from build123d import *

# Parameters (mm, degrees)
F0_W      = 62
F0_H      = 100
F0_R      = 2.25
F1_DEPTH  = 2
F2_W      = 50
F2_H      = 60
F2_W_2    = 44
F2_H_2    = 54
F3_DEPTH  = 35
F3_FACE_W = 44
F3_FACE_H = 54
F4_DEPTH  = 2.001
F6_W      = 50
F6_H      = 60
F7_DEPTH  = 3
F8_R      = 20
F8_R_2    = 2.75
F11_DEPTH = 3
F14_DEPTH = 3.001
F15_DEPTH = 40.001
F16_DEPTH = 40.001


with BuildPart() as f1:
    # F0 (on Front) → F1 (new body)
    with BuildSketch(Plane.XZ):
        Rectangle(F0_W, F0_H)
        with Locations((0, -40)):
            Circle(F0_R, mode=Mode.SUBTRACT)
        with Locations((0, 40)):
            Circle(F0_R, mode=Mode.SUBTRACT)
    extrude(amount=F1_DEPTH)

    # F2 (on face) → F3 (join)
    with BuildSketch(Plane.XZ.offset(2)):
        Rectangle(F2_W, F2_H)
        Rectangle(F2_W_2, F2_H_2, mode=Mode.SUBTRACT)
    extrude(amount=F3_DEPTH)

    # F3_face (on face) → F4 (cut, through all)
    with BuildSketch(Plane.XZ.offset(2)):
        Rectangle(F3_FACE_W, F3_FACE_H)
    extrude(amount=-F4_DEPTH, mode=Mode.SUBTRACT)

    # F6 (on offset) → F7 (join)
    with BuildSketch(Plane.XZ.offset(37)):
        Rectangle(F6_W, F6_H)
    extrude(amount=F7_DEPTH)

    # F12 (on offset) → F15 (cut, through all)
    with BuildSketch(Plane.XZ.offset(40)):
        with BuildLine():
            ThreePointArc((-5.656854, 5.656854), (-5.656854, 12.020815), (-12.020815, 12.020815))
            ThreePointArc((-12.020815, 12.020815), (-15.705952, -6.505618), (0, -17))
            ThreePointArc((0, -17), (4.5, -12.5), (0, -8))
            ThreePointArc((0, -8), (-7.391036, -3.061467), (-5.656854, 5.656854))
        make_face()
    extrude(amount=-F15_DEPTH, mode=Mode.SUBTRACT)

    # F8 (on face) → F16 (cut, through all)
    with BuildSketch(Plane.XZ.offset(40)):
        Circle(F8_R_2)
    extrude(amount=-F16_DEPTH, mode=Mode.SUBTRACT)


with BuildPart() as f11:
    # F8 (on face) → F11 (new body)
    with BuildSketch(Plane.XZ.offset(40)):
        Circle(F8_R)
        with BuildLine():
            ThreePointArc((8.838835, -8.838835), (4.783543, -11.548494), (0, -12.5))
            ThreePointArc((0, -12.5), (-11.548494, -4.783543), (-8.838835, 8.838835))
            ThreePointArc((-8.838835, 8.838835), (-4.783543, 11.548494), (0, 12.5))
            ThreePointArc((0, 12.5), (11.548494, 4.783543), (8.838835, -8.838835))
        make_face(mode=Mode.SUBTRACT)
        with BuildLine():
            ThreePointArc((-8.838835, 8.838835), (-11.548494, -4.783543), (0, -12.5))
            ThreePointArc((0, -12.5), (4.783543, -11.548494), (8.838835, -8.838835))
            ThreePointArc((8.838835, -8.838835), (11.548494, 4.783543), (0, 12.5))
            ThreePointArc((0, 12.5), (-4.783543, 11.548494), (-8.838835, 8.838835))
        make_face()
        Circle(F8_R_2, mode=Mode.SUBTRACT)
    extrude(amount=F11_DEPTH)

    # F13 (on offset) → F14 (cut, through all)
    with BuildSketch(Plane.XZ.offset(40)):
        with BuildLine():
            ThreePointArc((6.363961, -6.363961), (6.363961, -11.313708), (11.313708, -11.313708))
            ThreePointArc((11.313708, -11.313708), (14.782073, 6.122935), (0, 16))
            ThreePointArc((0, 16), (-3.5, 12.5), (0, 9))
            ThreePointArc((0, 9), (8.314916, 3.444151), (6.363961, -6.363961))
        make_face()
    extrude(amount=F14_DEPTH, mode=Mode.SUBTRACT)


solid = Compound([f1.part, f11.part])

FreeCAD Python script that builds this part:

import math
import FreeCAD as App
import Part
import Sketcher

V = App.Vector

doc = App.newDocument("Part")
params = doc.addObject("Spreadsheet::Sheet", "Params")
for row, (alias, value) in enumerate([
    ("sketch1_diameter", "4.5 mm"),
    ("sketch1_width", "62 mm"),
    ("sketch1_height", "100 mm"),
    ("pad1_length", "2 mm"),
    ("sketch2_width", "50 mm"),
    ("sketch2_width2", "44 mm"),
    ("sketch2_height", "60 mm"),
    ("sketch2_height2", "54 mm"),
    ("pad2_length", "35 mm"),
    ("sketch3_width", "44 mm"),
    ("sketch3_height", "54 mm"),
    ("sketch4_width", "50 mm"),
    ("sketch4_height", "60 mm"),
    ("pad3_length", "3 mm"),
    ("sketch5_radius", "17 mm"),
    ("sketch5_radius2", "8 mm"),
    ("sketch6_diameter", "5.5 mm"),
    ("sketch7_diameter", "40 mm"),
    ("sketch7_diameter2", "5.5 mm"),
    ("pad4_length", "3 mm"),
    ("sketch8_radius", "15.999999 mm"),
    ("sketch8_radius2", "9 mm"),
], start=1):
    params.set(f"A{row}", alias)
    params.set(f"B{row}", "=" + value)
    params.setAlias(f"B{row}", alias)

body = doc.addObject("PartDesign::Body", "Body")

# Sketch on XZ plane
sketch1 = body.newObject("Sketcher::SketchObject", "Sketch")
sketch1.AttachmentSupport = (doc.getObject("XZ_Plane"), [""])
sketch1.MapMode = "FlatFace"
sketch1.addGeometry(Part.LineSegment(V(-31, 50, 0), V(-31, -50, 0)), False)
sketch1.addGeometry(Part.LineSegment(V(-31, -50, 0), V(31, -50, 0)), False)
sketch1.addGeometry(Part.LineSegment(V(31, -50, 0), V(31, 50, 0)), False)
sketch1.addGeometry(Part.LineSegment(V(31, 50, 0), V(-31, 50, 0)), False)
sketch1.addGeometry(Part.Circle(V(0, -40, 0), V(0, 0, 1), 2.2), False)
sketch1.addGeometry(Part.Circle(V(0, 40, 0), V(0, 0, 1), 2.2), False)
sketch1.addConstraint(Sketcher.Constraint("Coincident", 0, 2, 1, 1))
sketch1.addConstraint(Sketcher.Constraint("Coincident", 1, 2, 2, 1))
sketch1.addConstraint(Sketcher.Constraint("Coincident", 2, 2, 3, 1))
sketch1.addConstraint(Sketcher.Constraint("Coincident", 3, 2, 0, 1))
sketch1.addConstraint(Sketcher.Constraint("Vertical", 0))
sketch1.addConstraint(Sketcher.Constraint("Horizontal", 1))
sketch1.addConstraint(Sketcher.Constraint("Vertical", 2))
sketch1.addConstraint(Sketcher.Constraint("Horizontal", 3))
sketch1.addConstraint(Sketcher.Constraint("Equal", 4, 5))
sketch1.addConstraint(Sketcher.Constraint("Symmetric", 4, 3, 5, 3, -1, 1))
sketch1.addConstraint(Sketcher.Constraint("Symmetric", 0, 2, 2, 2, -1, 1))
sketch1.addConstraint(Sketcher.Constraint("PointOnObject", 4, 3, -2))
sketch1.addConstraint(Sketcher.Constraint("Diameter", 4, 4.5))
sketch1.addConstraint(Sketcher.Constraint("DistanceX", 1, 1, 1, 2, 62.0))
sketch1.addConstraint(Sketcher.Constraint("DistanceY", 0, 2, 0, 1, 100.0))
sketch1.addConstraint(Sketcher.Constraint("DistanceY", 4, 3, -1, 1, 40.0))
sketch1.setExpression("Constraints[12]", "Params.sketch1_diameter")
sketch1.setExpression("Constraints[13]", "Params.sketch1_width")
sketch1.setExpression("Constraints[14]", "Params.sketch1_height")
pad1 = body.newObject("PartDesign::Pad", "Pad")
pad1.Profile = sketch1
pad1.setExpression("Length", "Params.pad1_length")

# Sketch on XZ plane
sketch2 = body.newObject("Sketcher::SketchObject", "Sketch001")
sketch2.AttachmentSupport = (doc.getObject("XZ_Plane"), [""])
sketch2.MapMode = "FlatFace"
sketch2.AttachmentOffset = App.Placement(V(0, 0, 2), App.Rotation())
sketch2.addGeometry(Part.LineSegment(V(-25, 30, 0), V(-25, -30, 0)), False)
sketch2.addGeometry(Part.LineSegment(V(-25, -30, 0), V(25, -30, 0)), False)
sketch2.addGeometry(Part.LineSegment(V(25, -30, 0), V(25, 30, 0)), False)
sketch2.addGeometry(Part.LineSegment(V(25, 30, 0), V(-25, 30, 0)), False)
sketch2.addGeometry(Part.LineSegment(V(22, -27, 0), V(-22, -27, 0)), False)
sketch2.addGeometry(Part.LineSegment(V(-22, -27, 0), V(-22, 27, 0)), False)
sketch2.addGeometry(Part.LineSegment(V(-22, 27, 0), V(22, 27, 0)), False)
sketch2.addGeometry(Part.LineSegment(V(22, 27, 0), V(22, -27, 0)), False)
sketch2.addConstraint(Sketcher.Constraint("Coincident", 0, 2, 1, 1))
sketch2.addConstraint(Sketcher.Constraint("Coincident", 1, 2, 2, 1))
sketch2.addConstraint(Sketcher.Constraint("Coincident", 2, 2, 3, 1))
sketch2.addConstraint(Sketcher.Constraint("Coincident", 3, 2, 0, 1))
sketch2.addConstraint(Sketcher.Constraint("Coincident", 4, 2, 5, 1))
sketch2.addConstraint(Sketcher.Constraint("Coincident", 5, 2, 6, 1))
sketch2.addConstraint(Sketcher.Constraint("Coincident", 6, 2, 7, 1))
sketch2.addConstraint(Sketcher.Constraint("Coincident", 7, 2, 4, 1))
sketch2.addConstraint(Sketcher.Constraint("Vertical", 0))
sketch2.addConstraint(Sketcher.Constraint("Horizontal", 1))
sketch2.addConstraint(Sketcher.Constraint("Vertical", 2))
sketch2.addConstraint(Sketcher.Constraint("Horizontal", 3))
sketch2.addConstraint(Sketcher.Constraint("Horizontal", 4))
sketch2.addConstraint(Sketcher.Constraint("Vertical", 5))
sketch2.addConstraint(Sketcher.Constraint("Horizontal", 6))
sketch2.addConstraint(Sketcher.Constraint("Vertical", 7))
sketch2.addConstraint(Sketcher.Constraint("Symmetric", 0, 2, 2, 2, -1, 1))
sketch2.addConstraint(Sketcher.Constraint("Symmetric", 4, 2, 6, 2, -1, 1))
sketch2.addConstraint(Sketcher.Constraint("DistanceX", 1, 1, 1, 2, 50.0))
sketch2.addConstraint(Sketcher.Constraint("DistanceX", 4, 2, 4, 1, 44.0))
sketch2.addConstraint(Sketcher.Constraint("DistanceY", 0, 2, 0, 1, 60.0))
sketch2.addConstraint(Sketcher.Constraint("DistanceY", 5, 1, 5, 2, 54.0))
sketch2.setExpression("Constraints[18]", "Params.sketch2_width")
sketch2.setExpression("Constraints[19]", "Params.sketch2_width2")
sketch2.setExpression("Constraints[20]", "Params.sketch2_height")
sketch2.setExpression("Constraints[21]", "Params.sketch2_height2")
pad2 = body.newObject("PartDesign::Pad", "Pad001")
pad2.Profile = sketch2
pad2.setExpression("Length", "Params.pad2_length")

# Sketch on XZ plane
sketch3 = body.newObject("Sketcher::SketchObject", "Sketch002")
sketch3.AttachmentSupport = (doc.getObject("XZ_Plane"), [""])
sketch3.MapMode = "FlatFace"
sketch3.AttachmentOffset = App.Placement(V(0, 0, 2), App.Rotation())
sketch3.addGeometry(Part.LineSegment(V(-22, 27, 0), V(-22, -27, 0)), False)
sketch3.addGeometry(Part.LineSegment(V(-22, -27, 0), V(22, -27, 0)), False)
sketch3.addGeometry(Part.LineSegment(V(22, -27, 0), V(22, 27, 0)), False)
sketch3.addGeometry(Part.LineSegment(V(22, 27, 0), V(-22, 27, 0)), False)
sketch3.addConstraint(Sketcher.Constraint("Coincident", 0, 2, 1, 1))
sketch3.addConstraint(Sketcher.Constraint("Coincident", 1, 2, 2, 1))
sketch3.addConstraint(Sketcher.Constraint("Coincident", 2, 2, 3, 1))
sketch3.addConstraint(Sketcher.Constraint("Coincident", 3, 2, 0, 1))
sketch3.addConstraint(Sketcher.Constraint("Vertical", 0))
sketch3.addConstraint(Sketcher.Constraint("Horizontal", 1))
sketch3.addConstraint(Sketcher.Constraint("Vertical", 2))
sketch3.addConstraint(Sketcher.Constraint("Horizontal", 3))
sketch3.addConstraint(Sketcher.Constraint("Symmetric", 0, 2, 2, 2, -1, 1))
sketch3.addConstraint(Sketcher.Constraint("DistanceX", 1, 1, 1, 2, 44.0))
sketch3.addConstraint(Sketcher.Constraint("DistanceY", 0, 2, 0, 1, 54.0))
sketch3.setExpression("Constraints[9]", "Params.sketch3_width")
sketch3.setExpression("Constraints[10]", "Params.sketch3_height")
pocket1 = body.newObject("PartDesign::Pocket", "Pocket")
pocket1.Profile = sketch3
pocket1.Type = "ThroughAll"

# Sketch on XZ plane
sketch4 = body.newObject("Sketcher::SketchObject", "Sketch003")
sketch4.AttachmentSupport = (doc.getObject("XZ_Plane"), [""])
sketch4.MapMode = "FlatFace"
sketch4.AttachmentOffset = App.Placement(V(0, 0, 37), App.Rotation())
sketch4.addGeometry(Part.LineSegment(V(-25, 30, 0), V(-25, -30, 0)), False)
sketch4.addGeometry(Part.LineSegment(V(-25, -30, 0), V(25, -30, 0)), False)
sketch4.addGeometry(Part.LineSegment(V(25, -30, 0), V(25, 30, 0)), False)
sketch4.addGeometry(Part.LineSegment(V(25, 30, 0), V(-25, 30, 0)), False)
sketch4.addConstraint(Sketcher.Constraint("Coincident", 0, 2, 1, 1))
sketch4.addConstraint(Sketcher.Constraint("Coincident", 1, 2, 2, 1))
sketch4.addConstraint(Sketcher.Constraint("Coincident", 2, 2, 3, 1))
sketch4.addConstraint(Sketcher.Constraint("Coincident", 3, 2, 0, 1))
sketch4.addConstraint(Sketcher.Constraint("Vertical", 0))
sketch4.addConstraint(Sketcher.Constraint("Horizontal", 1))
sketch4.addConstraint(Sketcher.Constraint("Vertical", 2))
sketch4.addConstraint(Sketcher.Constraint("Horizontal", 3))
sketch4.addConstraint(Sketcher.Constraint("Symmetric", 0, 2, 2, 2, -1, 1))
sketch4.addConstraint(Sketcher.Constraint("DistanceX", 1, 1, 1, 2, 50.0))
sketch4.addConstraint(Sketcher.Constraint("DistanceY", 0, 2, 0, 1, 60.0))
sketch4.setExpression("Constraints[9]", "Params.sketch4_width")
sketch4.setExpression("Constraints[10]", "Params.sketch4_height")
pad3 = body.newObject("PartDesign::Pad", "Pad002")
pad3.Profile = sketch4
pad3.setExpression("Length", "Params.pad3_length")

# Sketch on XZ plane
sketch5 = body.newObject("Sketcher::SketchObject", "Sketch004")
sketch5.AttachmentSupport = (doc.getObject("XZ_Plane"), [""])
sketch5.MapMode = "FlatFace"
sketch5.AttachmentOffset = App.Placement(V(0, 0, 40), App.Rotation())
sketch5.addGeometry(Part.ArcOfCircle(Part.Circle(V(-8.8, 8.8, 0), V(0, 0, 1), 4.5), math.radians(-45), math.radians(135)), False)
sketch5.addGeometry(Part.ArcOfCircle(Part.Circle(V(0, 0, 0), V(0, 0, 1), 17), math.radians(135), math.radians(270)), False)
sketch5.addGeometry(Part.ArcOfCircle(Part.Circle(V(0, -12.5, 0), V(0, 0, 1), 4.5), math.radians(-90), math.radians(90)), False)
sketch5.addGeometry(Part.ArcOfCircle(Part.Circle(V(0, 0, 0), V(0, 0, 1), 8), math.radians(135), math.radians(270)), False)
sketch5.addConstraint(Sketcher.Constraint("Tangent", 0, 2, 1, 1))
sketch5.addConstraint(Sketcher.Constraint("Tangent", 1, 2, 2, 1))
sketch5.addConstraint(Sketcher.Constraint("Tangent", 2, 2, 3, 2))
sketch5.addConstraint(Sketcher.Constraint("Tangent", 3, 1, 0, 1))
sketch5.addConstraint(Sketcher.Constraint("Coincident", 1, 3, -1, 1))
sketch5.addConstraint(Sketcher.Constraint("Coincident", 3, 3, -1, 1))
sketch5.addConstraint(Sketcher.Constraint("PointOnObject", 2, 3, -2))
sketch5.addConstraint(Sketcher.Constraint("Radius", 1, 17.0))
sketch5.addConstraint(Sketcher.Constraint("Radius", 3, 8.0))
sketch5.addConstraint(Sketcher.Constraint("DistanceX", 0, 2, 0, 3, 3.18198))
sketch5.setExpression("Constraints[7]", "Params.sketch5_radius")
sketch5.setExpression("Constraints[8]", "Params.sketch5_radius2")
pocket2 = body.newObject("PartDesign::Pocket", "Pocket001")
pocket2.Profile = sketch5
pocket2.Type = "ThroughAll"

# Sketch on XZ plane
sketch6 = body.newObject("Sketcher::SketchObject", "Sketch005")
sketch6.AttachmentSupport = (doc.getObject("XZ_Plane"), [""])
sketch6.MapMode = "FlatFace"
sketch6.AttachmentOffset = App.Placement(V(0, 0, 40), App.Rotation())
sketch6.addGeometry(Part.Circle(V(0, 0, 0), V(0, 0, 1), 2.8), False)
sketch6.addConstraint(Sketcher.Constraint("Coincident", 0, 3, -1, 1))
sketch6.addConstraint(Sketcher.Constraint("Diameter", 0, 5.5))
sketch6.setExpression("Constraints[1]", "Params.sketch6_diameter")
pocket3 = body.newObject("PartDesign::Pocket", "Pocket002")
pocket3.Profile = sketch6
pocket3.Type = "ThroughAll"
body2 = doc.addObject("PartDesign::Body", "Body001")

# Sketch on XZ plane
sketch7 = body2.newObject("Sketcher::SketchObject", "Sketch006")
sketch7.AttachmentSupport = (doc.getObject("XZ_Plane001"), [""])
sketch7.MapMode = "FlatFace"
sketch7.AttachmentOffset = App.Placement(V(0, 0, 40), App.Rotation())
sketch7.addGeometry(Part.Circle(V(0, 0, 0), V(0, 0, 1), 20), False)
sketch7.addGeometry(Part.Circle(V(0, 0, 0), V(0, 0, 1), 2.8), False)
sketch7.addConstraint(Sketcher.Constraint("Coincident", 0, 3, -1, 1))
sketch7.addConstraint(Sketcher.Constraint("Coincident", 1, 3, -1, 1))
sketch7.addConstraint(Sketcher.Constraint("Diameter", 0, 40.0))
sketch7.addConstraint(Sketcher.Constraint("Diameter", 1, 5.5))
sketch7.setExpression("Constraints[2]", "Params.sketch7_diameter")
sketch7.setExpression("Constraints[3]", "Params.sketch7_diameter2")
pad4 = body2.newObject("PartDesign::Pad", "Pad003")
pad4.Profile = sketch7
pad4.setExpression("Length", "Params.pad4_length")

# Sketch on XZ plane
sketch8 = body2.newObject("Sketcher::SketchObject", "Sketch007")
sketch8.AttachmentSupport = (doc.getObject("XZ_Plane001"), [""])
sketch8.MapMode = "FlatFace"
sketch8.AttachmentOffset = App.Placement(V(0, 0, 40), App.Rotation())
sketch8.addGeometry(Part.ArcOfCircle(Part.Circle(V(8.8, -8.8, 0), V(0, 0, 1), 3.5), math.radians(135), math.radians(315)), False)
sketch8.addGeometry(Part.ArcOfCircle(Part.Circle(V(0, 0, 0), V(0, 0, 1), 16), math.radians(-45), math.radians(90)), False)
sketch8.addGeometry(Part.ArcOfCircle(Part.Circle(V(0, 12.5, 0), V(0, 0, 1), 3.5), math.radians(90), math.radians(270)), False)
sketch8.addGeometry(Part.ArcOfCircle(Part.Circle(V(0, 0, 0), V(0, 0, 1), 9), math.radians(-45), math.radians(90)), False)
sketch8.addConstraint(Sketcher.Constraint("Tangent", 0, 2, 1, 1))
sketch8.addConstraint(Sketcher.Constraint("Tangent", 1, 2, 2, 1))
sketch8.addConstraint(Sketcher.Constraint("Tangent", 2, 2, 3, 2))
sketch8.addConstraint(Sketcher.Constraint("Tangent", 3, 1, 0, 1))
sketch8.addConstraint(Sketcher.Constraint("Coincident", 1, 3, -1, 1))
sketch8.addConstraint(Sketcher.Constraint("Coincident", 3, 3, -1, 1))
sketch8.addConstraint(Sketcher.Constraint("PointOnObject", 2, 3, -2))
sketch8.addConstraint(Sketcher.Constraint("Radius", 1, 15.999999))
sketch8.addConstraint(Sketcher.Constraint("Radius", 3, 9.0))
sketch8.addConstraint(Sketcher.Constraint("DistanceX", -1, 1, 0, 2, 11.313708))
sketch8.setExpression("Constraints[7]", "Params.sketch8_radius")
sketch8.setExpression("Constraints[8]", "Params.sketch8_radius2")
pocket4 = body2.newObject("PartDesign::Pocket", "Pocket003")
pocket4.Profile = sketch8
pocket4.Type = "ThroughAll"
pocket4.Reversed = True

doc.recompute()
